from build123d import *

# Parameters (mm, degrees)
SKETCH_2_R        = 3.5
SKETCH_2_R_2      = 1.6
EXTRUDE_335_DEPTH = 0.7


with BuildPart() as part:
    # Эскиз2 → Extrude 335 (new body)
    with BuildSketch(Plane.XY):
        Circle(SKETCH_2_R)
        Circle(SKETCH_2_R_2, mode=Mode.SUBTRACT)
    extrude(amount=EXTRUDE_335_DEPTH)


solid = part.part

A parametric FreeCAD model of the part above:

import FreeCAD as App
import Part
import Sketcher
Q = App.Units.Quantity

doc = App.newDocument("Part")
body = doc.addObject("PartDesign::Body", "Body")

sketch1 = doc.addObject("Sketcher::SketchObject", "Sketch")
body.addObject(sketch1)
sketch1.AttachmentSupport = (doc.XY_Plane, [""])
sketch1.MapMode = "FlatFace"
sketch1.addGeometry(Part.Circle(App.Vector(0, 0, 0), App.Vector(0, 0, 1), 3.5), False)
sketch1.addGeometry(Part.Circle(App.Vector(0, 0, 0), App.Vector(0, 0, 1), 1.6), False)
sketch1.addConstraint(Sketcher.Constraint("Coincident", 0, 3, -1, 1))
sketch1.addConstraint(Sketcher.Constraint("Coincident", 1, 3, -1, 1))
sketch1.addConstraint(Sketcher.Constraint("Diameter", 0, Q("7 mm")))
sketch1.addConstraint(Sketcher.Constraint("Diameter", 1, Q("3.2 mm")))
pad1 = doc.addObject("PartDesign::Pad", "Pad")
body.addObject(pad1)
pad1.Profile = sketch1
pad1.Length = 0.7

doc.recompute()
